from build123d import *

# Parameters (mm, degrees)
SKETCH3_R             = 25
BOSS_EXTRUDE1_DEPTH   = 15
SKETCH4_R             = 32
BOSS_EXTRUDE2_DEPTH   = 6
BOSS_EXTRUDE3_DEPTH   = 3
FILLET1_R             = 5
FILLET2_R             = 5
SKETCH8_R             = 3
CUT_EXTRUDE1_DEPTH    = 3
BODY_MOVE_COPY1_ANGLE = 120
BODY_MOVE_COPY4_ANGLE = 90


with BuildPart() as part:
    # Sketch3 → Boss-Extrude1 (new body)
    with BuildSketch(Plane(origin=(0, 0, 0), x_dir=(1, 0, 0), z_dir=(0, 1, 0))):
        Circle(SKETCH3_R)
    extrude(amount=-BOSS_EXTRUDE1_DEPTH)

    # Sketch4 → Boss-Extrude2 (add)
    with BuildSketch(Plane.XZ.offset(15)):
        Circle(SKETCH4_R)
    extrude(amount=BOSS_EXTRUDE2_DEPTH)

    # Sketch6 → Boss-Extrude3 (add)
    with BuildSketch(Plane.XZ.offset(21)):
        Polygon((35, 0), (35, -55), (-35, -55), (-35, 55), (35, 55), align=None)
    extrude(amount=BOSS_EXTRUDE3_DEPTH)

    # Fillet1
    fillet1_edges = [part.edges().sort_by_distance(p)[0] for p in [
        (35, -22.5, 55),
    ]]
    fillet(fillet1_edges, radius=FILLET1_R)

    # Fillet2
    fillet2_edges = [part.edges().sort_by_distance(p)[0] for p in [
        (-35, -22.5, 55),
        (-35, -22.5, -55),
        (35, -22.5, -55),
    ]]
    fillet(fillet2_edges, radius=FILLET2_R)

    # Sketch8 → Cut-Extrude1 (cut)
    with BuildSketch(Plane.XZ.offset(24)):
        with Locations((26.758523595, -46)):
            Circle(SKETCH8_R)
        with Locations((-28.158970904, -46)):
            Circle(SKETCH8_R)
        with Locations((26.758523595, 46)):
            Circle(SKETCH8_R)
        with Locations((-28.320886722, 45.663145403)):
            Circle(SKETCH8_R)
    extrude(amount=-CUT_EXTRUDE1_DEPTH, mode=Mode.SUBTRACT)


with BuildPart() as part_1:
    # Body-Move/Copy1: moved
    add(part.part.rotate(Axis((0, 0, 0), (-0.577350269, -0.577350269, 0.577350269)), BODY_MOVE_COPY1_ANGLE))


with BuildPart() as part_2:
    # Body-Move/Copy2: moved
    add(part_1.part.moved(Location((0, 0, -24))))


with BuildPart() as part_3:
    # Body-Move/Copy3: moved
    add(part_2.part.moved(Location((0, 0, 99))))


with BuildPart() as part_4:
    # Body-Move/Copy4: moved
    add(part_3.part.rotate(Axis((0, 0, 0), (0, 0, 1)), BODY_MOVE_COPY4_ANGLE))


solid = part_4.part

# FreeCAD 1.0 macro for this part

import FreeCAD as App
import Part
import Sketcher


def edges_at(feature, points):
    """Names of the edges that pass closest to the given points."""
    edges = feature.Shape.Edges
    near = lambda p: min(range(len(edges)), key=lambda i: edges[i].distToShape(Part.Vertex(*p))[0])
    return sorted({f"Edge{near(p) + 1}" for p in points})


def add_polygon(sketch, points):
    """Adds a closed chain of lines whose ends are joined by coincident constraints."""
    first, n = sketch.GeometryCount, len(points)
    for a, b in zip(points, points[1:] + points[:1]):
        sketch.addGeometry(Part.LineSegment(App.Vector(*a, 0), App.Vector(*b, 0)), False)
    for i in range(n):
        sketch.addConstraint(Sketcher.Constraint("Coincident", first + i, 2, first + (i + 1) % n, 1))

doc = App.newDocument("Part")
body = doc.addObject("PartDesign::Body", "Body")

# Sketch on XZ plane
sketch1 = body.newObject("Sketcher::SketchObject", "Sketch")
sketch1.AttachmentSupport = (doc.getObject("XZ_Plane"), [""])
sketch1.MapMode = "FlatFace"
sketch1.addGeometry(Part.Circle(App.Vector(0, 0, 0), App.Vector(0, 0, 1), 25), False)
sketch1.addConstraint([
    Sketcher.Constraint("Coincident", 0, 3, -1, 1),
    Sketcher.Constraint("Diameter", 0, 50.0),
])
pad1 = body.newObject("PartDesign::Pad", "Pad")
pad1.Profile = sketch1
pad1.Length = 15

# Sketch on XZ plane
sketch2 = body.newObject("Sketcher::SketchObject", "Sketch001")
sketch2.AttachmentSupport = (doc.getObject("XZ_Plane"), [""])
sketch2.MapMode = "FlatFace"
sketch2.AttachmentOffset = App.Placement(App.Vector(0, 0, 15), App.Rotation())
sketch2.addGeometry(Part.Circle(App.Vector(0, 0, 0), App.Vector(0, 0, 1), 32), False)
sketch2.addConstraint([
    Sketcher.Constraint("Coincident", 0, 3, -1, 1),
    Sketcher.Constraint("Diameter", 0, 64.0),
])
pad2 = body.newObject("PartDesign::Pad", "Pad001")
pad2.Profile = sketch2
pad2.Length = 6

# Sketch on XZ plane
sketch3 = body.newObject("Sketcher::SketchObject", "Sketch002")
sketch3.AttachmentSupport = (doc.getObject("XZ_Plane"), [""])
sketch3.MapMode = "FlatFace"
sketch3.AttachmentOffset = App.Placement(App.Vector(0, 0, 21), App.Rotation())
add_polygon(sketch3, [(35, -55), (35, 55), (-35, 55), (-35, -55)])  # lines 0-3
sketch3.addConstraint([
    Sketcher.Constraint("Vertical", 0),
    Sketcher.Constraint("Horizontal", 1),
    Sketcher.Constraint("Vertical", 2),
    Sketcher.Constraint("Horizontal", 3),
    Sketcher.Constraint("Symmetric", 0, 2, 2, 2, -1, 1),
    Sketcher.Constraint("DistanceX", 1, 2, 1, 1, 70.0),
    Sketcher.Constraint("DistanceY", 0, 1, 0, 2, 110.0),
])
pad3 = body.newObject("PartDesign::Pad", "Pad002")
pad3.Profile = sketch3
pad3.Length = 3
doc.recompute()

fillet = body.newObject("PartDesign::Fillet", "Fillet")
fillet.Base = (pad3, edges_at(pad3, [(35, -22.5, 55)]))
fillet.Radius = 5
doc.recompute()

fillet2 = body.newObject("PartDesign::Fillet", "Fillet001")
fillet2.Base = (fillet, edges_at(fillet, [(-35, -22.5, 55), (-35, -22.5, -55), (35, -22.5, -55)]))
fillet2.Radius = 5

# Sketch on XZ plane
sketch4 = body.newObject("Sketcher::SketchObject", "Sketch003")
sketch4.AttachmentSupport = (doc.getObject("XZ_Plane"), [""])
sketch4.MapMode = "FlatFace"
sketch4.AttachmentOffset = App.Placement(App.Vector(0, 0, 24), App.Rotation())
sketch4.addGeometry([
    Part.Circle(App.Vector(26.8, -46, 0), App.Vector(0, 0, 1), 3),
    Part.Circle(App.Vector(-28.2, -46, 0), App.Vector(0, 0, 1), 3),
    Part.Circle(App.Vector(26.8, 46, 0), App.Vector(0, 0, 1), 3),
    Part.Circle(App.Vector(-28.3, 45.7, 0), App.Vector(0, 0, 1), 3),
], False)
sketch4.addConstraint([
    Sketcher.Constraint("Equal", 0, 1),
    Sketcher.Constraint("Equal", 1, 2),
    Sketcher.Constraint("Equal", 2, 3),
    Sketcher.Constraint("Symmetric", 0, 3, 2, 3, -1),
    Sketcher.Constraint("Horizontal", 0, 3, 1, 3),
    Sketcher.Constraint("Diameter", 0, 6.0),
    Sketcher.Constraint("DistanceY", 0, 3, -1, 1, 46.0),
    Sketcher.Constraint("DistanceX", 1, 3, -1, 1, 28.158971),
    Sketcher.Constraint("DistanceX", 3, 3, 2, 3, 55.07941),
    Sketcher.Constraint("DistanceX", -1, 1, 0, 3, 26.758524),
    Sketcher.Constraint("DistanceY", -1, 1, 3, 3, 45.663145),
])
pocket1 = body.newObject("PartDesign::Pocket", "Pocket")
pocket1.Profile = sketch4
pocket1.Length = 3
body2 = doc.addObject("PartDesign::Body", "Body001")
doc.recompute()

body.Placement = App.Placement(App.Vector(0, 0, 0), App.Rotation(App.Vector(-0.577350269, -0.577350269, 0.577350269), 120))
boolean = body2.newObject("PartDesign::Boolean", "Boolean")
boolean.Type = "Fuse"
boolean.addObjects([body])
body3 = doc.addObject("PartDesign::Body", "Body002")
doc.recompute()

body2.Placement = App.Placement(App.Vector(0, 0, -24), App.Rotation(App.Vector(0, 0, 1), 0))
boolean2 = body3.newObject("PartDesign::Boolean", "Boolean001")
boolean2.Type = "Fuse"
boolean2.addObjects([body2])
body4 = doc.addObject("PartDesign::Body", "Body003")
doc.recompute()

body3.Placement = App.Placement(App.Vector(0, 0, 99), App.Rotation(App.Vector(0, 0, 1), 0))
boolean3 = body4.newObject("PartDesign::Boolean", "Boolean002")
boolean3.Type = "Fuse"
boolean3.addObjects([body3])
body5 = doc.addObject("PartDesign::Body", "Body004")
doc.recompute()

body4.Placement = App.Placement(App.Vector(0, 0, 0), App.Rotation(App.Vector(0, 0, 1), 90))
boolean4 = body5.newObject("PartDesign::Boolean", "Boolean003")
boolean4.Type = "Fuse"
boolean4.addObjects([body4])

doc.recompute()
